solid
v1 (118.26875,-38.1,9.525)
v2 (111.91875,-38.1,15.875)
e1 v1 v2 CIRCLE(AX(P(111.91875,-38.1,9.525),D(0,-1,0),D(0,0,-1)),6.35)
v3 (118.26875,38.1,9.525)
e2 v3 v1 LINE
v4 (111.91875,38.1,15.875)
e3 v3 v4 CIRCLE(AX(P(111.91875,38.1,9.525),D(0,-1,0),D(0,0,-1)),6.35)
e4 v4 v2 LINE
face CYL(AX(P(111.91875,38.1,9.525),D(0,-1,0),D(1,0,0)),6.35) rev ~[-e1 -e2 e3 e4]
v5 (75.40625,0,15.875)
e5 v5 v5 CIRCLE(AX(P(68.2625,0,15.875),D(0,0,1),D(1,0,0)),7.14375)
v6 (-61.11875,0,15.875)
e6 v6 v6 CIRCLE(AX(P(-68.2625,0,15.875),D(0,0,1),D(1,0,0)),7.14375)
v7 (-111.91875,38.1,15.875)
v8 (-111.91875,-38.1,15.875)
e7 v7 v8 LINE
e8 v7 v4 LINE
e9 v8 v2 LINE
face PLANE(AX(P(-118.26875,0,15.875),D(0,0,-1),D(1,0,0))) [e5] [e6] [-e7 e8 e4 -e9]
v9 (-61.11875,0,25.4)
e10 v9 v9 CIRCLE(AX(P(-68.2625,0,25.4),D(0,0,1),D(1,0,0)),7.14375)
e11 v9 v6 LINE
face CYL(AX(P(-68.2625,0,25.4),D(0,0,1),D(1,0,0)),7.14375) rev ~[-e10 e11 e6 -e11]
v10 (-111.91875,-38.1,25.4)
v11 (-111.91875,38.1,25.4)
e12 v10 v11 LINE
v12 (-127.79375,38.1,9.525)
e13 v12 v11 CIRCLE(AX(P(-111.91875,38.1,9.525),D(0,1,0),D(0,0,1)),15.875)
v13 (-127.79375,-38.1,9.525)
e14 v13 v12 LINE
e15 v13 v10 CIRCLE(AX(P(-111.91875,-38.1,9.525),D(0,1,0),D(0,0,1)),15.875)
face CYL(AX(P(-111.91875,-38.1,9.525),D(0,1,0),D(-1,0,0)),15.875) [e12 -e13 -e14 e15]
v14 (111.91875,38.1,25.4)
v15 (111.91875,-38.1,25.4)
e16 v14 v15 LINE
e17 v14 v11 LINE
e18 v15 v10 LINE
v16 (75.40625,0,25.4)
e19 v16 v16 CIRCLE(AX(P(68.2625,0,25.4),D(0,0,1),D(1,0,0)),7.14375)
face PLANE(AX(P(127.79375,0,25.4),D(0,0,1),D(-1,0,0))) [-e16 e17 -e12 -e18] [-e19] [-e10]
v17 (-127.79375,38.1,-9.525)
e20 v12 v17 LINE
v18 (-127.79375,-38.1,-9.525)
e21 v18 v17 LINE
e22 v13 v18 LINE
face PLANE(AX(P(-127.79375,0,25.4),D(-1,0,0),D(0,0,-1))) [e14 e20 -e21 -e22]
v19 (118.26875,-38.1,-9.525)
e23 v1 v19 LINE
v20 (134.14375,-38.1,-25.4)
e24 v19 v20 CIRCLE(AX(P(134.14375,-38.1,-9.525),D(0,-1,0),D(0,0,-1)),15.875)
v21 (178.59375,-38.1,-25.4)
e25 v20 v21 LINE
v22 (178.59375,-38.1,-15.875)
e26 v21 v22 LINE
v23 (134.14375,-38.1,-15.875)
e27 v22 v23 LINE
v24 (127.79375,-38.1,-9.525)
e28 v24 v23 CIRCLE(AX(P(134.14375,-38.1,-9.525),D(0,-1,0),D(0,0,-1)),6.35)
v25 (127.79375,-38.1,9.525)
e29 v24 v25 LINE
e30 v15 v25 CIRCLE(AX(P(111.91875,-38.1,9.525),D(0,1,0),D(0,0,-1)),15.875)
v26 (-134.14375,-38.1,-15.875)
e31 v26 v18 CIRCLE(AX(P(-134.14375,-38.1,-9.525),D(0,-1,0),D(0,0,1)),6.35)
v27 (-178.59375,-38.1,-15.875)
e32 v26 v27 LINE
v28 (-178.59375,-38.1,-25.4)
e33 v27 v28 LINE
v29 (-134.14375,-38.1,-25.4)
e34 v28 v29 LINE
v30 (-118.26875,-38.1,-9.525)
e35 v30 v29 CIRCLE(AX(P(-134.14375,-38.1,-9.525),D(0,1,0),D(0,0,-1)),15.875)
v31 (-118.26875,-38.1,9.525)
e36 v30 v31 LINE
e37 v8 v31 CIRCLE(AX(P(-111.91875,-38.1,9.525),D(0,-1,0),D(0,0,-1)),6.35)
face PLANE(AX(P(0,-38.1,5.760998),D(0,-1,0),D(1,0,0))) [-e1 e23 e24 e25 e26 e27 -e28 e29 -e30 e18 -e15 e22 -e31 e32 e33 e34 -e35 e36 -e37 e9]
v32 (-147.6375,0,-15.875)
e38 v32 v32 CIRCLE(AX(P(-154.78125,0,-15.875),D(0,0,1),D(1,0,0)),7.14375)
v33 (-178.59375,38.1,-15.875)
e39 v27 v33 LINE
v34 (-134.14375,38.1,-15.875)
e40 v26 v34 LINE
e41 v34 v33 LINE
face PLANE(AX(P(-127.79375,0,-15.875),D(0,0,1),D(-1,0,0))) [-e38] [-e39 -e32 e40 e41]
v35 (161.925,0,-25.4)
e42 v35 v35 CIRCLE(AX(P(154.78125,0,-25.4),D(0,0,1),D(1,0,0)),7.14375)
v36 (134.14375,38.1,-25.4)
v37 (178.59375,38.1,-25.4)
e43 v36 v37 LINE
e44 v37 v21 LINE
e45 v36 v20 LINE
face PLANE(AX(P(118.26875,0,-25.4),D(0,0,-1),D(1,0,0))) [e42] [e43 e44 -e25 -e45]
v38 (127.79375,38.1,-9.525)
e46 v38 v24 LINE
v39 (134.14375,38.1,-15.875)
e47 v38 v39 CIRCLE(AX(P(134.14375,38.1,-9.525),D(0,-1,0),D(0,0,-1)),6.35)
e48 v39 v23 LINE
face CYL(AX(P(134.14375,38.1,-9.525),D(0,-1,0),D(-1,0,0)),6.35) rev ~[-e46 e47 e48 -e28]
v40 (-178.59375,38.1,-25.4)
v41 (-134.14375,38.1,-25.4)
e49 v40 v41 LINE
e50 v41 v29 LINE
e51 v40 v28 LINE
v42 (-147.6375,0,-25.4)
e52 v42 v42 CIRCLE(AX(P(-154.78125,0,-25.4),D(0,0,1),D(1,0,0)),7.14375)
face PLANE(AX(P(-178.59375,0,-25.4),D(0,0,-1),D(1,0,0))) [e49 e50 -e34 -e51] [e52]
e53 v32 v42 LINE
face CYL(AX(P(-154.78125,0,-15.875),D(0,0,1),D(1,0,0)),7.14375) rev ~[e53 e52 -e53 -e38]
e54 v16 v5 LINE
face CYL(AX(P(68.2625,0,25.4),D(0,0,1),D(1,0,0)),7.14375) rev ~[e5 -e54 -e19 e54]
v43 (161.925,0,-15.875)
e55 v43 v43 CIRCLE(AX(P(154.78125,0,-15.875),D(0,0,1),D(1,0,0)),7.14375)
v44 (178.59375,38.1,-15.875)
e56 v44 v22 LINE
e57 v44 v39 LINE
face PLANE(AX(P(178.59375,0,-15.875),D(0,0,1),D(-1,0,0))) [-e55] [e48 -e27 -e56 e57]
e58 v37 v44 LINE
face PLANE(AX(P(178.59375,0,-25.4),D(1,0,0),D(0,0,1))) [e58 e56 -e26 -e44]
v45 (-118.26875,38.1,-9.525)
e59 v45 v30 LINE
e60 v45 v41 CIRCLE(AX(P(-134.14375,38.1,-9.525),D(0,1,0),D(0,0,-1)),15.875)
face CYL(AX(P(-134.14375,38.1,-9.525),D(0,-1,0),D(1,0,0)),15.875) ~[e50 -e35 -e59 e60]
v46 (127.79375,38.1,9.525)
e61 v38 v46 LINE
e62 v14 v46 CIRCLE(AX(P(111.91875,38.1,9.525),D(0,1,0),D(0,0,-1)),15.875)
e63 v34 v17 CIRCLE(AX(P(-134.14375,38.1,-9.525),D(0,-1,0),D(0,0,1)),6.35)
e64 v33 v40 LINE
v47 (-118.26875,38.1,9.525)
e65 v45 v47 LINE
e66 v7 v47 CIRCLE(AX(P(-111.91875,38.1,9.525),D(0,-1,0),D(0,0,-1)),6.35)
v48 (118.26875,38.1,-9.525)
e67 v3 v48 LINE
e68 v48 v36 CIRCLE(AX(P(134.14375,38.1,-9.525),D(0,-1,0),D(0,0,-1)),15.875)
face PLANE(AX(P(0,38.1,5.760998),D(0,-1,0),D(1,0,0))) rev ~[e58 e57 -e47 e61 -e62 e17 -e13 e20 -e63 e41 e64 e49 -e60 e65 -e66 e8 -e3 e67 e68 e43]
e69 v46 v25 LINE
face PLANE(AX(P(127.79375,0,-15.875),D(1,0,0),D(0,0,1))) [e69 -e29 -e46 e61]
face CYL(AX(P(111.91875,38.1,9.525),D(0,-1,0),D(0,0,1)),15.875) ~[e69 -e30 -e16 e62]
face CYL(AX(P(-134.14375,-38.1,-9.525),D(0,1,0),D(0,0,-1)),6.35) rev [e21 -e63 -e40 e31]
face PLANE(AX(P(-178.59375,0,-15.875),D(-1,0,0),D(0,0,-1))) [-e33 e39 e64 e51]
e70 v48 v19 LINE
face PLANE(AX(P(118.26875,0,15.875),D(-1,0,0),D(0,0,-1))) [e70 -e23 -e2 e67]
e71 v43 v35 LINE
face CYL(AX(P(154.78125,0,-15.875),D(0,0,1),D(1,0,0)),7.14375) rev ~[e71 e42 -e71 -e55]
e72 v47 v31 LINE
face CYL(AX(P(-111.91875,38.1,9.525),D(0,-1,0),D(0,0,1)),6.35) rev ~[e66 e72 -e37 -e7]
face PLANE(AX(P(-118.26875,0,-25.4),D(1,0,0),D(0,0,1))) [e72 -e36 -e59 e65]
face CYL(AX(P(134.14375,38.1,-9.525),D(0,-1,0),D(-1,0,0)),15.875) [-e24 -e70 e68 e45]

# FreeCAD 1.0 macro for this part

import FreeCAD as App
import Part
import Sketcher

V = App.Vector
Q = App.Units.Quantity


def edges_at(feature, points):
    """Names of the edges that pass closest to the given points."""
    edges = feature.Shape.Edges
    near = lambda p: min(range(len(edges)), key=lambda i: edges[i].distToShape(Part.Vertex(*p))[0])
    return sorted({f"Edge{near(p) + 1}" for p in points})

doc = App.newDocument("Part")
body = doc.addObject("PartDesign::Body", "Body")

sketch1 = body.newObject("Sketcher::SketchObject", "Sketch")
sketch1.AttachmentSupport = (doc.getObject("XZ_Plane"), [""])
sketch1.MapMode = "FlatFace"
sketch1.addGeometry([
    Part.LineSegment(V(-179, -16, 0), V(-179, -25, 0)),
    Part.LineSegment(V(-179, -25, 0), V(-118, -25, 0)),
    Part.LineSegment(V(-118, -25, 0), V(-118, 16, 0)),
    Part.LineSegment(V(-118, 16, 0), V(118, 16, 0)),
    Part.LineSegment(V(118, 16, 0), V(118, -25, 0)),
    Part.LineSegment(V(118, -25, 0), V(179, -25, 0)),
    Part.LineSegment(V(179, -25, 0), V(179, -16, 0)),
    Part.LineSegment(V(179, -16, 0), V(128, -16, 0)),
    Part.LineSegment(V(128, -16, 0), V(128, 25, 0)),
    Part.LineSegment(V(128, 25, 0), V(-128, 25, 0)),
    Part.LineSegment(V(-128, 25, 0), V(-128, -16, 0)),
    Part.LineSegment(V(-128, -16, 0), V(-179, -16, 0)),
], False)
sketch1.addConstraint([
    Sketcher.Constraint("Coincident", 0, 2, 1, 1),
    Sketcher.Constraint("Coincident", 1, 2, 2, 1),
    Sketcher.Constraint("Coincident", 2, 2, 3, 1),
    Sketcher.Constraint("Coincident", 3, 2, 4, 1),
    Sketcher.Constraint("Coincident", 4, 2, 5, 1),
    Sketcher.Constraint("Coincident", 5, 2, 6, 1),
    Sketcher.Constraint("Coincident", 6, 2, 7, 1),
    Sketcher.Constraint("Coincident", 7, 2, 8, 1),
    Sketcher.Constraint("Coincident", 8, 2, 9, 1),
    Sketcher.Constraint("Coincident", 9, 2, 10, 1),
    Sketcher.Constraint("Coincident", 10, 2, 11, 1),
    Sketcher.Constraint("Coincident", 11, 2, 0, 1),
    Sketcher.Constraint("Vertical", 0),
    Sketcher.Constraint("Horizontal", 1),
    Sketcher.Constraint("Vertical", 2),
    Sketcher.Constraint("Horizontal", 3),
    Sketcher.Constraint("Vertical", 4),
    Sketcher.Constraint("Horizontal", 5),
    Sketcher.Constraint("Vertical", 6),
    Sketcher.Constraint("Horizontal", 7),
    Sketcher.Constraint("Vertical", 8),
    Sketcher.Constraint("Horizontal", 9),
    Sketcher.Constraint("Vertical", 10),
    Sketcher.Constraint("Horizontal", 11),
    Sketcher.Constraint("Symmetric", 1, 2, 4, 2, -2),
    Sketcher.Constraint("Symmetric", 7, 2, 10, 2, -2),
    Sketcher.Constraint("Equal", 1, 5),
    Sketcher.Constraint("Equal", 4, 8),
    Sketcher.Constraint("DistanceX", 7, 2, 7, 1, Q("2 in")),
    Sketcher.Constraint("DistanceY", 0, 2, -1, 1, Q("1 in")),
    Sketcher.Constraint("DistanceY", -1, 1, 8, 2, Q("1 in")),
    Sketcher.Constraint("DistanceX", 1, 1, 1, 2, Q("2.375 in")),
    Sketcher.Constraint("DistanceX", 3, 1, 3, 2, Q("9.3125 in")),
    Sketcher.Constraint("DistanceY", 0, 2, 0, 1, Q("0.375 in")),
])
pad1 = body.newObject("PartDesign::Pad", "Pad")
pad1.Profile = sketch1
pad1.Length = Q("3 in")
pad1.Midplane = True
doc.recompute()

fillet = body.newObject("PartDesign::Fillet", "Fillet")
fillet.Base = (pad1, edges_at(pad1, [
    (-127.794, 0, -15.875),
    (-118.269, 0, 15.875),
    (118.269, 0, 15.875),
    (127.794, 0, -15.875),
]))
fillet.Radius = Q("0.25 in")
doc.recompute()

fillet2 = body.newObject("PartDesign::Fillet", "Fillet001")
fillet2.Base = (fillet, edges_at(fillet, [
    (-127.794, 0, 25.4),
    (127.794, 0, 25.4),
    (118.269, 0, -25.4),
    (-118.269, 0, -25.4),
]))
fillet2.Radius = Q("0.625 in")

sketch2 = body.newObject("Sketcher::SketchObject", "Sketch001")
sketch2.AttachmentSupport = (doc.getObject("XY_Plane"), [""])
sketch2.MapMode = "FlatFace"
sketch2.AttachmentOffset = App.Placement(V(0, 0, 1 * 25.4), App.Rotation())
sketch2.addGeometry([
    Part.Circle(V(-68, 0, 0), V(0, 0, 1), 7),
    Part.Circle(V(68, 0, 0), V(0, 0, 1), 7),
], False)
sketch2.addConstraint([
    Sketcher.Constraint("Equal", 0, 1),
    Sketcher.Constraint("Symmetric", 0, 3, 1, 3, -1, 1),
    Sketcher.Constraint("PointOnObject", 0, 3, -1),
    Sketcher.Constraint("Diameter", 0, Q("0.5625 in")),
    Sketcher.Constraint("DistanceX", 0, 3, -1, 1, Q("2.6875 in")),
])
pocket1 = body.newObject("PartDesign::Pocket", "Pocket")
pocket1.Profile = sketch2
pocket1.Length = Q("1 in")

sketch3 = body.newObject("Sketcher::SketchObject", "Sketch002")
sketch3.AttachmentSupport = (doc.getObject("XY_Plane"), [""])
sketch3.MapMode = "FlatFace"
sketch3.AttachmentOffset = App.Placement(V(0, 0, -0.625 * 25.4), App.Rotation())
sketch3.addGeometry([
    Part.Circle(V(-155, 0, 0), V(0, 0, 1), 7),
    Part.Circle(V(155, 0, 0), V(0, 0, 1), 7),
], False)
sketch3.addConstraint([
    Sketcher.Constraint("Equal", 0, 1),
    Sketcher.Constraint("Symmetric", 0, 3, 1, 3, -1, 1),
    Sketcher.Constraint("PointOnObject", 0, 3, -1),
    Sketcher.Constraint("Diameter", 0, Q("0.5625 in")),
    Sketcher.Constraint("DistanceX", 0, 3, -1, 1, Q("6.09375 in")),
])
pocket2 = body.newObject("PartDesign::Pocket", "Pocket001")
pocket2.Profile = sketch3
pocket2.Length = Q("1 in")

doc.recompute()
